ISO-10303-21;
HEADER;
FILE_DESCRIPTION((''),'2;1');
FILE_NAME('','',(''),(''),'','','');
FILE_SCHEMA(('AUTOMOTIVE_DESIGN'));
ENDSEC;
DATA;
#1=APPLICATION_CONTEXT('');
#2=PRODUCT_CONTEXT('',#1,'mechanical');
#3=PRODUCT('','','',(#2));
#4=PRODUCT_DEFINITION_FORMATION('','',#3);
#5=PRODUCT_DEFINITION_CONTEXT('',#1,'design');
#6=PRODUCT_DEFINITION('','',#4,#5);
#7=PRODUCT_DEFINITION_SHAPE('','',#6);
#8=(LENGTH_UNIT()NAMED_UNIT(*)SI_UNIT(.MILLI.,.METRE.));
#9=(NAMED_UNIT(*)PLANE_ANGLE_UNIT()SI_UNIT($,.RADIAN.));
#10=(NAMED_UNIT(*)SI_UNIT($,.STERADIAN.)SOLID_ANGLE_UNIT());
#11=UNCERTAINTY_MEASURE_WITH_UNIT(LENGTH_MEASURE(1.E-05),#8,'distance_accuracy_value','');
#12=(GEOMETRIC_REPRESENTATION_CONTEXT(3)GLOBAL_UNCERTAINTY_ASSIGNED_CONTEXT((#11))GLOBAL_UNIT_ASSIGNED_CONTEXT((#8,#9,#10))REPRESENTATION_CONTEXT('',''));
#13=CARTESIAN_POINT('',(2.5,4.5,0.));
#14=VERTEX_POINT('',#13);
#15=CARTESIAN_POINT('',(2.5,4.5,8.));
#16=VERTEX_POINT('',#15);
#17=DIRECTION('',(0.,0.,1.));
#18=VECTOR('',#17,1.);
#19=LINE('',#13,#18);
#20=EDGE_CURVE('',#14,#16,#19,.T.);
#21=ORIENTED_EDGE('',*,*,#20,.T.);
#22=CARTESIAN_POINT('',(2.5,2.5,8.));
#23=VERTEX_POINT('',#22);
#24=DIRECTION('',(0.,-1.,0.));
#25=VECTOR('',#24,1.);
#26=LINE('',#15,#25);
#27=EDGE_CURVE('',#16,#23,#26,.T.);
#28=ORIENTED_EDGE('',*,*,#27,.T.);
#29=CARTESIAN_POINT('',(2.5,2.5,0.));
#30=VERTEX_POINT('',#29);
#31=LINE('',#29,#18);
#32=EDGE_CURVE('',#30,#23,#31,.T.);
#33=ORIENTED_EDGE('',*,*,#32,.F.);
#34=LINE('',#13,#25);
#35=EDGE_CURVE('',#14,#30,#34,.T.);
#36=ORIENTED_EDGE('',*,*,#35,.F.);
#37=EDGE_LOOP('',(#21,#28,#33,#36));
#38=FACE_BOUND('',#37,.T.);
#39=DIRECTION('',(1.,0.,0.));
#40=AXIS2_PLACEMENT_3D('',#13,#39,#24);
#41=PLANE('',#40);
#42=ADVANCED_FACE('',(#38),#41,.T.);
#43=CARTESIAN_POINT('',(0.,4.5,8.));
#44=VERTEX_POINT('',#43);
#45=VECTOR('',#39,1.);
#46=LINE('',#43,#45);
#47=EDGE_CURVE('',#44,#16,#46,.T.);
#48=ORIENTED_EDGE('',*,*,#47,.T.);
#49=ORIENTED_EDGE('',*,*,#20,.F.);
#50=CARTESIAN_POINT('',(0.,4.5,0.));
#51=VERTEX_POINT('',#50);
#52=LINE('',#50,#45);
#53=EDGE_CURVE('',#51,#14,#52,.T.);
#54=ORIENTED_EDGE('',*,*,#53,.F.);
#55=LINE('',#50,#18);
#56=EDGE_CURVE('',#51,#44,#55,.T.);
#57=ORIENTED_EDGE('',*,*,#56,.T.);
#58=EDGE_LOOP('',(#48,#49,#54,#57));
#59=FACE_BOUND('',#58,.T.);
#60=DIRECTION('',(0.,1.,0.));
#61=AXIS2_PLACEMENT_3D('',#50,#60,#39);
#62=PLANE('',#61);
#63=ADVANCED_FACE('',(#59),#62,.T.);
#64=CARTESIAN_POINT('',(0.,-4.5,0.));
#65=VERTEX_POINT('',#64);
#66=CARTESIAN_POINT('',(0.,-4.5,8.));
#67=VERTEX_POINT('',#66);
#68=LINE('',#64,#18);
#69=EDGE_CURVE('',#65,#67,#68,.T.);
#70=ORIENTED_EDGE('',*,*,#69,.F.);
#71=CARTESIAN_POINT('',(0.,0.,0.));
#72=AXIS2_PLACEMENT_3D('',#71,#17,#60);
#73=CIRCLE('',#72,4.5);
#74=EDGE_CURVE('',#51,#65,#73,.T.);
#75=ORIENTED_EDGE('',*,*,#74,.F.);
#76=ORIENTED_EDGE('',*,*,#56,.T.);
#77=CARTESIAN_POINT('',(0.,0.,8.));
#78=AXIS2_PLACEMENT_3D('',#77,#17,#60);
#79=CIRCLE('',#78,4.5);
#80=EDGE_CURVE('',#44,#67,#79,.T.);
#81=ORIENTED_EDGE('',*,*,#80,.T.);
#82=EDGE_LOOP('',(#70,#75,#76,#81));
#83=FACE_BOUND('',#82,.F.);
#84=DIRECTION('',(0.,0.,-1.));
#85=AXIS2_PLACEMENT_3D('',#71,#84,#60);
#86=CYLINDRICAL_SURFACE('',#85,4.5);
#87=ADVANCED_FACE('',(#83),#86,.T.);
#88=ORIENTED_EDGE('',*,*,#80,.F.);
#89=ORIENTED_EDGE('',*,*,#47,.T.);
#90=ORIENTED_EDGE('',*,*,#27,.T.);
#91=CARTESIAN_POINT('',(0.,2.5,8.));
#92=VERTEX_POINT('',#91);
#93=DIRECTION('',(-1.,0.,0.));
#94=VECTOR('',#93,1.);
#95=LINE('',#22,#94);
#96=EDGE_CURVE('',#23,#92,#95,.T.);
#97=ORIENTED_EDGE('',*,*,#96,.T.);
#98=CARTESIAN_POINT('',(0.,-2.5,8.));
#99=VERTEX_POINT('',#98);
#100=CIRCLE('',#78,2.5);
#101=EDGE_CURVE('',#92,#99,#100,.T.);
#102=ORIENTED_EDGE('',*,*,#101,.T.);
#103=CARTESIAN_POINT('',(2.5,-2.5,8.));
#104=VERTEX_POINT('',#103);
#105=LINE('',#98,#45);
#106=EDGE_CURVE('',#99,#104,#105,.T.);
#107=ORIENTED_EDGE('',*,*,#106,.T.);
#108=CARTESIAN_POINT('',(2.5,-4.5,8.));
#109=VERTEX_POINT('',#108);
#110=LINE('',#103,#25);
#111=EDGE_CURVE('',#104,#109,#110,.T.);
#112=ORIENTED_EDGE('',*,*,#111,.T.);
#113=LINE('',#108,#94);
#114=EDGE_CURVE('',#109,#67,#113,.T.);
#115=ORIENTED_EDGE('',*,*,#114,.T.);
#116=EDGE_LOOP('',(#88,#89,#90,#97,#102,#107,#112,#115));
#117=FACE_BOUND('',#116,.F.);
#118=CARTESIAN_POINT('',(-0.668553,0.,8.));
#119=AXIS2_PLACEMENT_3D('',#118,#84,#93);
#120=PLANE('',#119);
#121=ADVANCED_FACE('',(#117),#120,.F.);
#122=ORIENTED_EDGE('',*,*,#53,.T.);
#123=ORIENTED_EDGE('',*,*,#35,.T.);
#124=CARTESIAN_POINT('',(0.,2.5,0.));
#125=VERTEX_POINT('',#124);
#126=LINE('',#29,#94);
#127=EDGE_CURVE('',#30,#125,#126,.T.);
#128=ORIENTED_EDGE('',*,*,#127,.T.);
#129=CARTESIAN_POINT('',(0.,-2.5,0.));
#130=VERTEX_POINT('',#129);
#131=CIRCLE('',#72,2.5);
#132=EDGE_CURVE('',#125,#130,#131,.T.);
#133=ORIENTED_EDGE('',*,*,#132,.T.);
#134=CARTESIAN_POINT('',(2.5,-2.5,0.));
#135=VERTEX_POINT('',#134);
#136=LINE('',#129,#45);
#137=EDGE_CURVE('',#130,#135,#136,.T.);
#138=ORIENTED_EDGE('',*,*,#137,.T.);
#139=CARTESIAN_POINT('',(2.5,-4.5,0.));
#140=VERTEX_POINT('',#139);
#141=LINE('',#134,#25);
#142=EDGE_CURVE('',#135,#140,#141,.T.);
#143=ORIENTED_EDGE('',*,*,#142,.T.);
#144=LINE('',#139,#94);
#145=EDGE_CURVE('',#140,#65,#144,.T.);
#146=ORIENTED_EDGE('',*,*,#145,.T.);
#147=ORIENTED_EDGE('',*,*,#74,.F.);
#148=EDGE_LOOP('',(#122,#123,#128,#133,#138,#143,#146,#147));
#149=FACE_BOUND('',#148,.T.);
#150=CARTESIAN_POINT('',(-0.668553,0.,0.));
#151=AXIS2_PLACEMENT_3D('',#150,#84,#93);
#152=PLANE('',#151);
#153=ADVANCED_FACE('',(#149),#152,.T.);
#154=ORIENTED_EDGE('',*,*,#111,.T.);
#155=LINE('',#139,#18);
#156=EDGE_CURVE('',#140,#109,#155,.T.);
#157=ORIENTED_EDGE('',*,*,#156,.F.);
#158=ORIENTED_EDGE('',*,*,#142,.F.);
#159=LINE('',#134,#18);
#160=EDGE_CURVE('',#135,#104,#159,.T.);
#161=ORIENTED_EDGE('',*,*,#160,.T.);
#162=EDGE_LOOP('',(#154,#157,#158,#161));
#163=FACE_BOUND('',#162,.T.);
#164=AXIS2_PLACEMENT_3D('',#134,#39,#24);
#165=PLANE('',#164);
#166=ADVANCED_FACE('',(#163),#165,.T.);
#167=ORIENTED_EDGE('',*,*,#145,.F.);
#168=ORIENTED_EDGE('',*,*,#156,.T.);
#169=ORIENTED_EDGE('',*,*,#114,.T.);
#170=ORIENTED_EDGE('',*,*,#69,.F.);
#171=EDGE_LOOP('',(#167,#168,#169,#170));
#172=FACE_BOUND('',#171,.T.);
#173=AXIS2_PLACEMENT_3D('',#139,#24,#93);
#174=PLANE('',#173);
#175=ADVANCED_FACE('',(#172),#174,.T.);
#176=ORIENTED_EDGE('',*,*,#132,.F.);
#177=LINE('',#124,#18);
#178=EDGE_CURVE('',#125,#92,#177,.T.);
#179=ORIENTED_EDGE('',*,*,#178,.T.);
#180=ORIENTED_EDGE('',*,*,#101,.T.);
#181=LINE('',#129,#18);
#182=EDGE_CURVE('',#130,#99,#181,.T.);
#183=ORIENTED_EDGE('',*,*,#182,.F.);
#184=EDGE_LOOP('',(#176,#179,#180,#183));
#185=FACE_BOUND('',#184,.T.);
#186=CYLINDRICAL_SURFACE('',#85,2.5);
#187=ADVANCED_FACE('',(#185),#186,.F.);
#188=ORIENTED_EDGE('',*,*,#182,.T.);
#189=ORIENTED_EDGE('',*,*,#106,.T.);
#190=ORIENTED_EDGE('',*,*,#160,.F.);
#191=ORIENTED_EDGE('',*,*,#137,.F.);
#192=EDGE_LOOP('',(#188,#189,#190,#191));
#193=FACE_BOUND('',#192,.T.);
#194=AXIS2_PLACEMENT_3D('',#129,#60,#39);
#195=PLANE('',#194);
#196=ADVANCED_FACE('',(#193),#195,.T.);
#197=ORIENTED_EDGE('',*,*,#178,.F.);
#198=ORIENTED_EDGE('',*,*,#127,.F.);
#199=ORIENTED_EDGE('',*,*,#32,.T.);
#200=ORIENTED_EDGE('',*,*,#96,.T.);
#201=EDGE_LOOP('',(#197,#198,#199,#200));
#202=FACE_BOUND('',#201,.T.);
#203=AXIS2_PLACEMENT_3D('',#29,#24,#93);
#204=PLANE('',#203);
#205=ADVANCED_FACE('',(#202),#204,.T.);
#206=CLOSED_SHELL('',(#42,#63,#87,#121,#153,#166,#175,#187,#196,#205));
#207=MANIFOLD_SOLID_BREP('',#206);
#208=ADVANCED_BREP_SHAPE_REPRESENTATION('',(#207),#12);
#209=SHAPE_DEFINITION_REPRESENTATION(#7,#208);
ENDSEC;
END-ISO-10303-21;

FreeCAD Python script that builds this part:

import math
import FreeCAD as App
import Part
import Sketcher
from FreeCAD import Vector
Q = App.Units.Quantity

doc = App.newDocument("Part")
params = doc.addObject("Spreadsheet::Sheet", "Params")
for row, (alias, value) in enumerate([
    ("sketch1_radius", "2.5 mm"),
    ("sketch1_radius2", "4.5 mm"),
    ("sketch1_width", "2.5 mm"),
    ("pad1_length", "8 mm"),
], start=1):
    params.set(f"A{row}", alias)
    params.set(f"B{row}", "=" + value)
    params.setAlias(f"B{row}", alias)

body = doc.addObject("PartDesign::Body", "Body")

# Sketch on XY plane
sketch1 = body.newObject("Sketcher::SketchObject", "Sketch")
sketch1.AttachmentSupport = (doc.getObject("XY_Plane"), [""])
sketch1.MapMode = "FlatFace"
sketch1.addGeometry([
    Part.ArcOfCircle(Part.Circle(Vector(0, 0, 0), Vector(0, 0, 1), 2.5), math.radians(90), math.radians(270)),  # 0
    Part.LineSegment(Vector(0, 2.5, 0), Vector(2.5, 2.5, 0)),  # 1
    Part.LineSegment(Vector(2.5, 2.5, 0), Vector(2.5, 4.5, 0)),  # 2
    Part.LineSegment(Vector(2.5, 4.5, 0), Vector(0, 4.5, 0)),  # 3
    Part.ArcOfCircle(Part.Circle(Vector(0, 0, 0), Vector(0, 0, 1), 4.5), math.radians(90), math.radians(270)),  # 4
    Part.LineSegment(Vector(0, -4.5, 0), Vector(2.5, -4.5, 0)),  # 5
    Part.LineSegment(Vector(2.5, -4.5, 0), Vector(2.5, -2.5, 0)),  # 6
    Part.LineSegment(Vector(2.5, -2.5, 0), Vector(0, -2.5, 0)),  # 7
], False)
sketch1.addConstraint([
    Sketcher.Constraint("Tangent", 0, 1, 1, 1),
    Sketcher.Constraint("Coincident", 1, 2, 2, 1),
    Sketcher.Constraint("Coincident", 2, 2, 3, 1),
    Sketcher.Constraint("Tangent", 3, 2, 4, 1),
    Sketcher.Constraint("Tangent", 4, 2, 5, 1),
    Sketcher.Constraint("Coincident", 5, 2, 6, 1),
    Sketcher.Constraint("Coincident", 6, 2, 7, 1),
    Sketcher.Constraint("Tangent", 7, 2, 0, 2),
    Sketcher.Constraint("Horizontal", 1),
    Sketcher.Constraint("Vertical", 2),
    Sketcher.Constraint("Horizontal", 3),
    Sketcher.Constraint("Horizontal", 5),
    Sketcher.Constraint("Vertical", 6),
    Sketcher.Constraint("Horizontal", 7),
    Sketcher.Constraint("Coincident", 0, 3, -1, 1),
    Sketcher.Constraint("Coincident", 4, 3, -1, 1),
    Sketcher.Constraint("Vertical", 2, 2, 5, 2),
    Sketcher.Constraint("Radius", 0, Q("2.5 mm")),
    Sketcher.Constraint("Radius", 4, Q("4.5 mm")),
    Sketcher.Constraint("DistanceX", 1, 1, 1, 2, Q("2.5 mm")),
])
sketch1.setExpression("Constraints[17]", "Params.sketch1_radius")
sketch1.setExpression("Constraints[18]", "Params.sketch1_radius2")
sketch1.setExpression("Constraints[19]", "Params.sketch1_width")
pad1 = body.newObject("PartDesign::Pad", "Pad")
pad1.Profile = sketch1
pad1.setExpression("Length", "Params.pad1_length")

doc.recompute()
